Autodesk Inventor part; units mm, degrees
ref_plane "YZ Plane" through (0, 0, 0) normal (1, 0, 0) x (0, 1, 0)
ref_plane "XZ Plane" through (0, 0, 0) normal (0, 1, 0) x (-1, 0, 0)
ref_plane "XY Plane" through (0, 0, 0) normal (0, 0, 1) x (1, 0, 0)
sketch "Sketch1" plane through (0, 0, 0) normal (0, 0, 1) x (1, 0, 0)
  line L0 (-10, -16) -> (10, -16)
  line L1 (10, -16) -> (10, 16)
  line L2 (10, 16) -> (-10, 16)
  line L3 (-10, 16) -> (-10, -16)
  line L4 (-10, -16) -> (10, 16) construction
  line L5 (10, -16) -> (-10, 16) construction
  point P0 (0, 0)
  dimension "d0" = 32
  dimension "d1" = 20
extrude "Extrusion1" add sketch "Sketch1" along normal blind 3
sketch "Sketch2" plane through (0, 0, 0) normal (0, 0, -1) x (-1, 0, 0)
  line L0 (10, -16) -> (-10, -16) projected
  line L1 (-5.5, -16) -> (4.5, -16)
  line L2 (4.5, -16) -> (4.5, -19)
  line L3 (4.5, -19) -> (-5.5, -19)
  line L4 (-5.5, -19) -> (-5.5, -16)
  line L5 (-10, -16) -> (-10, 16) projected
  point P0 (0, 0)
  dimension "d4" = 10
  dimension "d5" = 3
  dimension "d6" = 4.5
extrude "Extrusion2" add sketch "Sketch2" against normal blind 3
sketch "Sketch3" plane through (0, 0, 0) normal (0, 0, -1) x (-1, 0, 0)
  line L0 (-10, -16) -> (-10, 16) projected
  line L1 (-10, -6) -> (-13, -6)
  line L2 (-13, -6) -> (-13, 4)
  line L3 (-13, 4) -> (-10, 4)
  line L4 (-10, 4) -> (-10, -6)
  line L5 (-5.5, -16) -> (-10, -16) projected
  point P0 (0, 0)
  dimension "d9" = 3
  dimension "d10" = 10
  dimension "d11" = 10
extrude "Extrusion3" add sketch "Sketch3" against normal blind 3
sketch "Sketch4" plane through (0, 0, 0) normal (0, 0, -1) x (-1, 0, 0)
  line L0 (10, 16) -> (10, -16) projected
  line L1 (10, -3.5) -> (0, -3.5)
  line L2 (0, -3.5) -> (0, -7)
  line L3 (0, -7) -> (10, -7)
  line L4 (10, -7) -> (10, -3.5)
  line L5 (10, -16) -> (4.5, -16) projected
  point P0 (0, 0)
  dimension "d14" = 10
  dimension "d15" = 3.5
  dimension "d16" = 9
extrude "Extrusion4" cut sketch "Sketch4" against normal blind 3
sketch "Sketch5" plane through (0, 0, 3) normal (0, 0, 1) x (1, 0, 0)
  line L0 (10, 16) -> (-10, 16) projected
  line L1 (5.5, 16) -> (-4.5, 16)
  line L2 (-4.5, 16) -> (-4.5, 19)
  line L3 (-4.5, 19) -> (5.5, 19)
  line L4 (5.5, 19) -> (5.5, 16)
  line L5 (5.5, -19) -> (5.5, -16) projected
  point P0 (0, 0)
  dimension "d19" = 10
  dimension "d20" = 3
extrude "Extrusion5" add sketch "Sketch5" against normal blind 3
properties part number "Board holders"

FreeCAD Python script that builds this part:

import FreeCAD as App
import Part
import Sketcher

V = App.Vector


def add_polygon(sketch, points):
    """Adds a closed chain of lines whose ends are joined by coincident constraints."""
    first, n = sketch.GeometryCount, len(points)
    for a, b in zip(points, points[1:] + points[:1]):
        sketch.addGeometry(Part.LineSegment(App.Vector(*a, 0), App.Vector(*b, 0)), False)
    for i in range(n):
        sketch.addConstraint(Sketcher.Constraint("Coincident", first + i, 2, first + (i + 1) % n, 1))

doc = App.newDocument("Part")
body = doc.addObject("PartDesign::Body", "Body")

sketch1 = body.newObject("Sketcher::SketchObject", "Sketch")
sketch1.AttachmentSupport = (doc.getObject("XY_Plane"), [""])
sketch1.MapMode = "FlatFace"
add_polygon(sketch1, [(-10, 16), (-10, -16), (10, -16), (10, 16)])
sketch1.addConstraint(Sketcher.Constraint("Vertical", 0))
sketch1.addConstraint(Sketcher.Constraint("Horizontal", 1))
sketch1.addConstraint(Sketcher.Constraint("Vertical", 2))
sketch1.addConstraint(Sketcher.Constraint("Horizontal", 3))
sketch1.addConstraint(Sketcher.Constraint("Symmetric", 0, 2, 2, 2, -1, 1))
sketch1.addConstraint(Sketcher.Constraint("DistanceX", 1, 1, 1, 2, 20.0))
sketch1.addConstraint(Sketcher.Constraint("DistanceY", 0, 2, 0, 1, 32.0))
pad1 = body.newObject("PartDesign::Pad", "Pad")
pad1.Profile = sketch1
pad1.Length = 3

sketch2 = body.newObject("Sketcher::SketchObject", "Sketch001")
sketch2.AttachmentSupport = (doc.getObject("XY_Plane"), [""])
sketch2.MapMode = "FlatFace"
add_polygon(sketch2, [(-4.5, -19), (-4.5, -16), (5.5, -16), (5.5, -19)])
sketch2.addConstraint(Sketcher.Constraint("Vertical", 0))
sketch2.addConstraint(Sketcher.Constraint("Horizontal", 1))
sketch2.addConstraint(Sketcher.Constraint("Vertical", 2))
sketch2.addConstraint(Sketcher.Constraint("Horizontal", 3))
sketch2.addConstraint(Sketcher.Constraint("DistanceX", 1, 1, 1, 2, 10.0))
sketch2.addConstraint(Sketcher.Constraint("DistanceY", 0, 1, 0, 2, 3.0))
sketch2.addConstraint(Sketcher.Constraint("DistanceX", 0, 2, -1, 1, 4.5))
sketch2.addConstraint(Sketcher.Constraint("DistanceY", 0, 2, -1, 1, 16.0))
pad2 = body.newObject("PartDesign::Pad", "Pad001")
pad2.Profile = sketch2
pad2.Length = 3

sketch3 = body.newObject("Sketcher::SketchObject", "Sketch002")
sketch3.AttachmentSupport = (doc.getObject("XY_Plane"), [""])
sketch3.MapMode = "FlatFace"
add_polygon(sketch3, [(13, -6), (10, -6), (10, 4), (13, 4)])
sketch3.addConstraint(Sketcher.Constraint("Horizontal", 0))
sketch3.addConstraint(Sketcher.Constraint("Vertical", 1))
sketch3.addConstraint(Sketcher.Constraint("Horizontal", 2))
sketch3.addConstraint(Sketcher.Constraint("Vertical", 3))
sketch3.addConstraint(Sketcher.Constraint("DistanceX", 0, 2, 0, 1, 3.0))
sketch3.addConstraint(Sketcher.Constraint("DistanceY", 1, 1, 1, 2, 10.0))
sketch3.addConstraint(Sketcher.Constraint("DistanceX", -1, 1, 0, 2, 10.0))
sketch3.addConstraint(Sketcher.Constraint("DistanceY", 0, 2, -1, 1, 6.0))
pad3 = body.newObject("PartDesign::Pad", "Pad002")
pad3.Profile = sketch3
pad3.Length = 3

sketch4 = body.newObject("Sketcher::SketchObject", "Sketch003")
sketch4.AttachmentSupport = (doc.getObject("XY_Plane"), [""])
sketch4.MapMode = "FlatFace"
add_polygon(sketch4, [(-10, -7), (-10, -3.5), (0, -3.5), (0, -7)])
sketch4.addConstraint(Sketcher.Constraint("Vertical", 0))
sketch4.addConstraint(Sketcher.Constraint("Horizontal", 1))
sketch4.addConstraint(Sketcher.Constraint("Vertical", 2))
sketch4.addConstraint(Sketcher.Constraint("Horizontal", 3))
sketch4.addConstraint(Sketcher.Constraint("PointOnObject", 1, 2, -2))
sketch4.addConstraint(Sketcher.Constraint("DistanceX", 1, 1, 1, 2, 10.0))
sketch4.addConstraint(Sketcher.Constraint("DistanceY", 0, 1, 0, 2, 3.5))
sketch4.addConstraint(Sketcher.Constraint("DistanceY", 0, 2, -1, 1, 3.5))
pocket1 = body.newObject("PartDesign::Pocket", "Pocket")
pocket1.Profile = sketch4
pocket1.Length = 3
pocket1.Reversed = True

sketch5 = body.newObject("Sketcher::SketchObject", "Sketch004")
sketch5.AttachmentSupport = (doc.getObject("XY_Plane"), [""])
sketch5.MapMode = "FlatFace"
sketch5.AttachmentOffset = App.Placement(V(0, 0, 3), App.Rotation())
add_polygon(sketch5, [(-4.5, 16), (5.5, 16), (5.5, 19), (-4.5, 19)])
sketch5.addConstraint(Sketcher.Constraint("Horizontal", 0))
sketch5.addConstraint(Sketcher.Constraint("Vertical", 1))
sketch5.addConstraint(Sketcher.Constraint("Horizontal", 2))
sketch5.addConstraint(Sketcher.Constraint("Vertical", 3))
sketch5.addConstraint(Sketcher.Constraint("DistanceX", 0, 1, 0, 2, 10.0))
sketch5.addConstraint(Sketcher.Constraint("DistanceY", 1, 1, 1, 2, 3.0))
sketch5.addConstraint(Sketcher.Constraint("DistanceY", -1, 1, 0, 2, 16.0))
sketch5.addConstraint(Sketcher.Constraint("DistanceX", -1, 1, 0, 2, 5.5))
pad4 = body.newObject("PartDesign::Pad", "Pad003")
pad4.Profile = sketch5
pad4.Length = 3
pad4.Reversed = True

doc.recompute()
